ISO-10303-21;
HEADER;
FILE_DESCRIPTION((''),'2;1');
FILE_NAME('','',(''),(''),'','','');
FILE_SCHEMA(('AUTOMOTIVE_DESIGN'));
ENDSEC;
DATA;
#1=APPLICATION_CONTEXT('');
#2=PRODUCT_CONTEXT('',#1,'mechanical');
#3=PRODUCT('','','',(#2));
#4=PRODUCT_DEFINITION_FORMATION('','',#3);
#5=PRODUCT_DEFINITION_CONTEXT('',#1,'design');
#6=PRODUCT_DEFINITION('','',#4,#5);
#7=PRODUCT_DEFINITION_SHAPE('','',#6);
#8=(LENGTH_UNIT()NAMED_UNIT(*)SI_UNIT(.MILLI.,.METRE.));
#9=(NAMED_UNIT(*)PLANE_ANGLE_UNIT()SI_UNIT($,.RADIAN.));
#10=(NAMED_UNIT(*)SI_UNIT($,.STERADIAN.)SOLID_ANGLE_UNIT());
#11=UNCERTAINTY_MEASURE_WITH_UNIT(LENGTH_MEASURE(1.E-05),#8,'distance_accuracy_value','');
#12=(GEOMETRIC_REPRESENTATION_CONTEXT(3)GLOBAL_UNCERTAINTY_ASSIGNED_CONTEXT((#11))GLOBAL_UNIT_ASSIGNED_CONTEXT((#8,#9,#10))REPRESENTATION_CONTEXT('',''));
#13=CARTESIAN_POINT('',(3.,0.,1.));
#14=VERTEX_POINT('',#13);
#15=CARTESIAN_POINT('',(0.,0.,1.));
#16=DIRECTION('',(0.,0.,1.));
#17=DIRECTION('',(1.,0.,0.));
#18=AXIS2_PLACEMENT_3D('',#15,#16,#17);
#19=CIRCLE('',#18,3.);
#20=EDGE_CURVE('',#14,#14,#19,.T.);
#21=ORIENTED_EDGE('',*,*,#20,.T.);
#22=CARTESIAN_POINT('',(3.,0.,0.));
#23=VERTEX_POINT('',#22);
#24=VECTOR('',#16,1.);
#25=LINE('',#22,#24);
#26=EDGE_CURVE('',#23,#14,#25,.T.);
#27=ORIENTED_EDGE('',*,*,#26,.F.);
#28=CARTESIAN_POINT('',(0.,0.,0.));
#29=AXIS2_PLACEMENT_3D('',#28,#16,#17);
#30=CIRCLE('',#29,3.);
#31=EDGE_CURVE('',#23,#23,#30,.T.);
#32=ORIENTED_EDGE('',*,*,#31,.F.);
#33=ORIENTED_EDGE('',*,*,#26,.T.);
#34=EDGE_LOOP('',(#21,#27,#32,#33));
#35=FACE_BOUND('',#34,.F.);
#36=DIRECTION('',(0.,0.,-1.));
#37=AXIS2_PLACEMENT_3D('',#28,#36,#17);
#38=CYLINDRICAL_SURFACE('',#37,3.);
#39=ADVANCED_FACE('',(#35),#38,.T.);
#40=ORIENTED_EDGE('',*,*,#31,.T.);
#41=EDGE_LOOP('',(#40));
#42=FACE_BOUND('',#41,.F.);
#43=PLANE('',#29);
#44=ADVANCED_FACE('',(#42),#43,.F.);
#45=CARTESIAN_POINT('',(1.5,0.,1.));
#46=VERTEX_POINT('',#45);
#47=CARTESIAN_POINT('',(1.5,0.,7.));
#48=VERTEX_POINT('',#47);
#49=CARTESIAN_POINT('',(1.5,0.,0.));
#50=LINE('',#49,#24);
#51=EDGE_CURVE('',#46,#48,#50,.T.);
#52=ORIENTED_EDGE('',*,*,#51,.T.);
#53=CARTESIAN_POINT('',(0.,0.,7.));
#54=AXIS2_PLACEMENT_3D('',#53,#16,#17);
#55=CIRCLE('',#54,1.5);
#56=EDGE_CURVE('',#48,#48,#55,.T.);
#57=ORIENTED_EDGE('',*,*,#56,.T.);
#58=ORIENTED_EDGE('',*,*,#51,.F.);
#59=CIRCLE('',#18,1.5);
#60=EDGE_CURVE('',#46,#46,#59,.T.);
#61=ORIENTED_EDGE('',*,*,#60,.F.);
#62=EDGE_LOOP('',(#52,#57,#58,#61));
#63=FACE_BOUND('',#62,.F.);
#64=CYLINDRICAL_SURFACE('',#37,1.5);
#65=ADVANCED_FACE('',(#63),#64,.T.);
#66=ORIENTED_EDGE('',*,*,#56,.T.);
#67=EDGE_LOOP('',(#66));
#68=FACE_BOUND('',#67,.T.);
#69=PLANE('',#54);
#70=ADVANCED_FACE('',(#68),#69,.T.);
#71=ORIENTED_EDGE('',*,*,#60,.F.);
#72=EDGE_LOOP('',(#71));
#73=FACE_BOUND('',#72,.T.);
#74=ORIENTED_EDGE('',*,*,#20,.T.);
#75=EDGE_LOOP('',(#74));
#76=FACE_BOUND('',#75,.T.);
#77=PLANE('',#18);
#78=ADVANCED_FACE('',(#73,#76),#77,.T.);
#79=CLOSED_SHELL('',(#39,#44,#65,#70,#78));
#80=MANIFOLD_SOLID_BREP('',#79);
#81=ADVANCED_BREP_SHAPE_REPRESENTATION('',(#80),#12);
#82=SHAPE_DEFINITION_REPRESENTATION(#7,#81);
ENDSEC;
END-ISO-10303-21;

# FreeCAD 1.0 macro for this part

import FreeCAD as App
import Part
import Sketcher

V = App.Vector

doc = App.newDocument("Part")
body = doc.addObject("PartDesign::Body", "Body")

sketch1 = body.newObject("Sketcher::SketchObject", "Sketch")
sketch1.AttachmentSupport = (doc.getObject("XY_Plane"), [""])
sketch1.MapMode = "FlatFace"
sketch1.addGeometry([
    Part.Circle(V(0, 0, 0), V(0, 0, 1), 3),
    Part.Circle(V(0, 0, 0), V(0, 0, 1), 1.5),
], False)
sketch1.addConstraint([
    Sketcher.Constraint("Coincident", 0, 3, -1, 1),
    Sketcher.Constraint("Coincident", 1, 3, -1, 1),
    Sketcher.Constraint("Diameter", 0, 6.0),
    Sketcher.Constraint("Diameter", 1, 3.0),
])
pad1 = body.newObject("PartDesign::Pad", "Pad")
pad1.Profile = sketch1
pad1.Length = 1

sketch2 = body.newObject("Sketcher::SketchObject", "Sketch001")
sketch2.AttachmentSupport = (doc.getObject("XY_Plane"), [""])
sketch2.MapMode = "FlatFace"
sketch2.addGeometry(Part.Circle(V(0, 0, 0), V(0, 0, 1), 1.5), False)
sketch2.addConstraint([
    Sketcher.Constraint("Coincident", 0, 3, -1, 1),
    Sketcher.Constraint("Diameter", 0, 3.0),
])
pad2 = body.newObject("PartDesign::Pad", "Pad001")
pad2.Profile = sketch2
pad2.Length = 7

doc.recompute()
